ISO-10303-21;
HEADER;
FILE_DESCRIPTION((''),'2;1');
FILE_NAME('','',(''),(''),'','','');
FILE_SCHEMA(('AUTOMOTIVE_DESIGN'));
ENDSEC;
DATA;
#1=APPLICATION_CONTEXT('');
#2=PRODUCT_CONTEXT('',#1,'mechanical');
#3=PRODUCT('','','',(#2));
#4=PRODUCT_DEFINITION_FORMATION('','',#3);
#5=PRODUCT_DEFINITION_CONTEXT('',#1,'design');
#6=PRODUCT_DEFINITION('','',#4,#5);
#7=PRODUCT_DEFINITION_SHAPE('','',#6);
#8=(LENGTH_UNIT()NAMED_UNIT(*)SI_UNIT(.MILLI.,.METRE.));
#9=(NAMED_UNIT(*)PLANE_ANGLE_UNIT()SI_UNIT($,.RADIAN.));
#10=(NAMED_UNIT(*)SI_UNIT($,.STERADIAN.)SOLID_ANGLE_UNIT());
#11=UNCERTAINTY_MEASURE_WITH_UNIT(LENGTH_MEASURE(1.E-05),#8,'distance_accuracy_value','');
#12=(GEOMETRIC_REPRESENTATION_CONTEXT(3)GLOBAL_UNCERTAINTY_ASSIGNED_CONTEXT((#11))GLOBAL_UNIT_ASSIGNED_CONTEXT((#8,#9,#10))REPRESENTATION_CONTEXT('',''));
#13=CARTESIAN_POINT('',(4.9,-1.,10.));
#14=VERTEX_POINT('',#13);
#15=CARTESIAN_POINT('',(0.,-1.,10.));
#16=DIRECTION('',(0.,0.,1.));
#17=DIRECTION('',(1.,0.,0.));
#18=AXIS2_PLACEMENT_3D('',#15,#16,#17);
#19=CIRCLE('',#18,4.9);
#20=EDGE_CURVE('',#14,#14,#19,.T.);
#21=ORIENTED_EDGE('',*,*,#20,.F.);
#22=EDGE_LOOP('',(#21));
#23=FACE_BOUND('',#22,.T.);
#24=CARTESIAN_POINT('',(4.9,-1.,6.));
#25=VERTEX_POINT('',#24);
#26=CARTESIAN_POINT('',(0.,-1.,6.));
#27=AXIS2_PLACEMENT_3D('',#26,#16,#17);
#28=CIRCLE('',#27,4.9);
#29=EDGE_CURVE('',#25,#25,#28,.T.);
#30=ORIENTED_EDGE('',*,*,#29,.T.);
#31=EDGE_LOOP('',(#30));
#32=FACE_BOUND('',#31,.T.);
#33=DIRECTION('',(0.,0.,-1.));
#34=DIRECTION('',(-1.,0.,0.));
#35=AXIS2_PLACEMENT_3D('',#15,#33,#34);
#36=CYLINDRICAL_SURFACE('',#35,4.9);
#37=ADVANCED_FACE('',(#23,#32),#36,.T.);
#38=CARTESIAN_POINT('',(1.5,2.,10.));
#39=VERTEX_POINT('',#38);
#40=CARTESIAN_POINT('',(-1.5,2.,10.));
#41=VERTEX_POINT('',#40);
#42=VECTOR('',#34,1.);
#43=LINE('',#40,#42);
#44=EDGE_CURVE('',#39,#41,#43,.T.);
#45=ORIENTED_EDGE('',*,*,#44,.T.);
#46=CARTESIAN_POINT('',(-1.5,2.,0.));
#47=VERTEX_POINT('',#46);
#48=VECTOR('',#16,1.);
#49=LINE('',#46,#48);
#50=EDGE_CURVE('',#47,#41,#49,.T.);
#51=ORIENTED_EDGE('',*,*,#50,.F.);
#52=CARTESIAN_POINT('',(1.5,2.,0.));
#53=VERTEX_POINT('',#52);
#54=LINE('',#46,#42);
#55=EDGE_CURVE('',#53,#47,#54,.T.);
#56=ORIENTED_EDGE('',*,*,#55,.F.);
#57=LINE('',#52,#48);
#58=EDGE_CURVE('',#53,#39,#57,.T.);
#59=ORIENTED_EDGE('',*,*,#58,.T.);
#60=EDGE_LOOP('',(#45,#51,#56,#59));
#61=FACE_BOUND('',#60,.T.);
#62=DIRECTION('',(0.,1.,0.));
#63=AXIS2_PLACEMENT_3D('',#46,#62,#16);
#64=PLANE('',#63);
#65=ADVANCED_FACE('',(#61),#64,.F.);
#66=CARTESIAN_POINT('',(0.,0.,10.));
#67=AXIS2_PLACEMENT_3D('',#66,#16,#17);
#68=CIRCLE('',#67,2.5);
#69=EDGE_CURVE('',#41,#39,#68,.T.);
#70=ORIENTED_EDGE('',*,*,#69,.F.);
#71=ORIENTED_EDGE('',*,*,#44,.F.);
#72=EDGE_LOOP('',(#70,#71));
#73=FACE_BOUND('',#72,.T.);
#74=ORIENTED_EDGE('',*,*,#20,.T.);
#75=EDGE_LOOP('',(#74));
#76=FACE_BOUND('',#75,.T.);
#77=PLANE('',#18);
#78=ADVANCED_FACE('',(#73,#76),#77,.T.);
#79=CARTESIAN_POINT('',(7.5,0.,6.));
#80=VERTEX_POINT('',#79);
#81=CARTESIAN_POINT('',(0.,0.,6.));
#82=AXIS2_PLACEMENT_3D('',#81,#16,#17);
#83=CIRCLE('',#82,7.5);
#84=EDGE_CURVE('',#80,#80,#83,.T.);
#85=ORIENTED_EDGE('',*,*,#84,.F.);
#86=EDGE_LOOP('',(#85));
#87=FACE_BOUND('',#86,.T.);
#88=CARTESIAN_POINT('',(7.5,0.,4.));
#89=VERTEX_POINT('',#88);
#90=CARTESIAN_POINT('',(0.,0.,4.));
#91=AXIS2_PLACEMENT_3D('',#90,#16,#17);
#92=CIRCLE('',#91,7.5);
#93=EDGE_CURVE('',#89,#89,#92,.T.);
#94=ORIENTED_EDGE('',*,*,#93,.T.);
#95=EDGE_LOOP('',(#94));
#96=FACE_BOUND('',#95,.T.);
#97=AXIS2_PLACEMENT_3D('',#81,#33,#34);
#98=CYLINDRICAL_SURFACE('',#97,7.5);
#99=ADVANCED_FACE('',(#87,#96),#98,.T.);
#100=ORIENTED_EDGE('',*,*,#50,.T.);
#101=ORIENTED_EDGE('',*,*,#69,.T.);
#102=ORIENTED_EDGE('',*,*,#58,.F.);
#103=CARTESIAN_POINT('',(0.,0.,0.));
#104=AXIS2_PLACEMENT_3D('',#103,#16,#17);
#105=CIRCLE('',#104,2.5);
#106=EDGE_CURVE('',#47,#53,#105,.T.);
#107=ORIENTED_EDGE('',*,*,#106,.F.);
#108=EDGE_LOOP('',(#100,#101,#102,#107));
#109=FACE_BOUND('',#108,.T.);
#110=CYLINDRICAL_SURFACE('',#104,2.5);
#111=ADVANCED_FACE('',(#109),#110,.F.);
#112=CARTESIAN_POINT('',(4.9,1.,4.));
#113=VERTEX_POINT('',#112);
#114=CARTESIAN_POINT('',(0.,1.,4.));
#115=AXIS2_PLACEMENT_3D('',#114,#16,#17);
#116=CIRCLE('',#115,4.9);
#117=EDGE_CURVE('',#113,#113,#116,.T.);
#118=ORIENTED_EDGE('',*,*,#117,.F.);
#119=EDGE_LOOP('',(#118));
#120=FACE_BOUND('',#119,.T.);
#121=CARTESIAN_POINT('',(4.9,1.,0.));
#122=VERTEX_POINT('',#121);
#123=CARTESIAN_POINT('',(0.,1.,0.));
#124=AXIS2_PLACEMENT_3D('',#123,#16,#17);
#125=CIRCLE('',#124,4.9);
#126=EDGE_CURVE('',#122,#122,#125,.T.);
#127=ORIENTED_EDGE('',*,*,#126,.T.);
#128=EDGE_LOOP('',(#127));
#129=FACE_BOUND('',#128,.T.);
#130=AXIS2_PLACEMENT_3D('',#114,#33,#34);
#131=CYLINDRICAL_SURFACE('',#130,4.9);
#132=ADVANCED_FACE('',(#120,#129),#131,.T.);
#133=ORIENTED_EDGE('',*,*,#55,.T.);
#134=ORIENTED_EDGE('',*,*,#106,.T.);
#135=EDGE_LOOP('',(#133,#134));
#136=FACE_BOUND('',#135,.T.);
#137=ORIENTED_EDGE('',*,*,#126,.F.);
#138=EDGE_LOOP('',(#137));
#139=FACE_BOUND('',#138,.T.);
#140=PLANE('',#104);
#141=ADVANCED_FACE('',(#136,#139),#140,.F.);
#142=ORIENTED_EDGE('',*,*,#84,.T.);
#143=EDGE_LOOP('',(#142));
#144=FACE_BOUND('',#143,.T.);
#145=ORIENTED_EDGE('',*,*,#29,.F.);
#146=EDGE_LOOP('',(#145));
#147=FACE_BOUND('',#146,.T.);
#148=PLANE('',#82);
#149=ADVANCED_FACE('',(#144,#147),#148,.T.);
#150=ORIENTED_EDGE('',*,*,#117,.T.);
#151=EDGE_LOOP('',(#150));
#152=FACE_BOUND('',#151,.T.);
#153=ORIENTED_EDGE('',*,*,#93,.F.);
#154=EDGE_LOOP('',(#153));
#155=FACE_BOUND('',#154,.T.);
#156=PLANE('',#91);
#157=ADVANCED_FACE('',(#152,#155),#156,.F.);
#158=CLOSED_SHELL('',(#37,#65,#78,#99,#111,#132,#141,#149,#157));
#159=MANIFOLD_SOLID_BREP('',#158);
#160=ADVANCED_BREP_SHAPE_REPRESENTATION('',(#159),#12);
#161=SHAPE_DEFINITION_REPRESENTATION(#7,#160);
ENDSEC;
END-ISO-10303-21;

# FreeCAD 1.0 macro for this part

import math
import FreeCAD as App
import Part
import Sketcher
from FreeCAD import Vector
Q = App.Units.Quantity

doc = App.newDocument("Part")
body = doc.addObject("PartDesign::Body", "Body")

sketch1 = body.newObject("Sketcher::SketchObject", "Sketch")
sketch1.AttachmentSupport = (doc.getObject("XY_Plane"), [""])
sketch1.MapMode = "FlatFace"
sketch1.addGeometry(Part.Circle(Vector(0, 1, 0), Vector(0, 0, 1), 4.9), False)
sketch1.addConstraint([
    Sketcher.Constraint("PointOnObject", 0, 3, -2),
    Sketcher.Constraint("Diameter", 0, Q("9.8 mm")),
    Sketcher.Constraint("DistanceY", -1, 1, 0, 3, Q("1 mm")),
])
pad1 = body.newObject("PartDesign::Pad", "Pad")
pad1.Profile = sketch1
pad1.Length = 4

sketch2 = body.newObject("Sketcher::SketchObject", "Sketch001")
sketch2.AttachmentSupport = (doc.getObject("XY_Plane"), [""])
sketch2.MapMode = "FlatFace"
sketch2.AttachmentOffset = App.Placement(Vector(0, 0, 4), App.Rotation())
sketch2.addGeometry(Part.Circle(Vector(0, 0, 0), Vector(0, 0, 1), 8), False)
sketch2.addConstraint([
    Sketcher.Constraint("Coincident", 0, 3, -1, 1),
    Sketcher.Constraint("Diameter", 0, Q("15 mm")),
])
pad2 = body.newObject("PartDesign::Pad", "Pad001")
pad2.Profile = sketch2
pad2.Length = 2

sketch3 = body.newObject("Sketcher::SketchObject", "Sketch002")
sketch3.AttachmentSupport = (doc.getObject("XY_Plane"), [""])
sketch3.MapMode = "FlatFace"
sketch3.AttachmentOffset = App.Placement(Vector(0, 0, 6), App.Rotation())
sketch3.addGeometry(Part.Circle(Vector(0, -1, 0), Vector(0, 0, 1), 4.9), False)
sketch3.addConstraint([
    Sketcher.Constraint("PointOnObject", 0, 3, -2),
    Sketcher.Constraint("Diameter", 0, Q("9.8 mm")),
    Sketcher.Constraint("DistanceY", 0, 3, -1, 1, Q("1 mm")),
])
pad3 = body.newObject("PartDesign::Pad", "Pad002")
pad3.Profile = sketch3
pad3.Length = 4

sketch4 = body.newObject("Sketcher::SketchObject", "Sketch003")
sketch4.AttachmentSupport = (doc.getObject("XY_Plane"), [""])
sketch4.MapMode = "FlatFace"
sketch4.AttachmentOffset = App.Placement(Vector(0, 0, 10), App.Rotation())
sketch4.addGeometry([
    Part.LineSegment(Vector(1.5, 2, 0), Vector(-1.5, 2, 0)),
    Part.ArcOfCircle(Part.Circle(Vector(0, 0, 0), Vector(0, 0, 1), 2.5), math.radians(127), math.radians(413)),
], False)
sketch4.addConstraint([
    Sketcher.Constraint("Coincident", 0, 1, 1, 2),
    Sketcher.Constraint("Coincident", 1, 1, 0, 2),
    Sketcher.Constraint("Horizontal", 0),
    Sketcher.Constraint("Coincident", 1, 3, -1, 1),
    Sketcher.Constraint("Radius", 1, Q("2.5 mm")),
    Sketcher.Constraint("DistanceX", 0, 2, 0, 1, Q("3 mm")),
])
pocket1 = body.newObject("PartDesign::Pocket", "Pocket")
pocket1.Profile = sketch4
pocket1.Type = "ThroughAll"

doc.recompute()
